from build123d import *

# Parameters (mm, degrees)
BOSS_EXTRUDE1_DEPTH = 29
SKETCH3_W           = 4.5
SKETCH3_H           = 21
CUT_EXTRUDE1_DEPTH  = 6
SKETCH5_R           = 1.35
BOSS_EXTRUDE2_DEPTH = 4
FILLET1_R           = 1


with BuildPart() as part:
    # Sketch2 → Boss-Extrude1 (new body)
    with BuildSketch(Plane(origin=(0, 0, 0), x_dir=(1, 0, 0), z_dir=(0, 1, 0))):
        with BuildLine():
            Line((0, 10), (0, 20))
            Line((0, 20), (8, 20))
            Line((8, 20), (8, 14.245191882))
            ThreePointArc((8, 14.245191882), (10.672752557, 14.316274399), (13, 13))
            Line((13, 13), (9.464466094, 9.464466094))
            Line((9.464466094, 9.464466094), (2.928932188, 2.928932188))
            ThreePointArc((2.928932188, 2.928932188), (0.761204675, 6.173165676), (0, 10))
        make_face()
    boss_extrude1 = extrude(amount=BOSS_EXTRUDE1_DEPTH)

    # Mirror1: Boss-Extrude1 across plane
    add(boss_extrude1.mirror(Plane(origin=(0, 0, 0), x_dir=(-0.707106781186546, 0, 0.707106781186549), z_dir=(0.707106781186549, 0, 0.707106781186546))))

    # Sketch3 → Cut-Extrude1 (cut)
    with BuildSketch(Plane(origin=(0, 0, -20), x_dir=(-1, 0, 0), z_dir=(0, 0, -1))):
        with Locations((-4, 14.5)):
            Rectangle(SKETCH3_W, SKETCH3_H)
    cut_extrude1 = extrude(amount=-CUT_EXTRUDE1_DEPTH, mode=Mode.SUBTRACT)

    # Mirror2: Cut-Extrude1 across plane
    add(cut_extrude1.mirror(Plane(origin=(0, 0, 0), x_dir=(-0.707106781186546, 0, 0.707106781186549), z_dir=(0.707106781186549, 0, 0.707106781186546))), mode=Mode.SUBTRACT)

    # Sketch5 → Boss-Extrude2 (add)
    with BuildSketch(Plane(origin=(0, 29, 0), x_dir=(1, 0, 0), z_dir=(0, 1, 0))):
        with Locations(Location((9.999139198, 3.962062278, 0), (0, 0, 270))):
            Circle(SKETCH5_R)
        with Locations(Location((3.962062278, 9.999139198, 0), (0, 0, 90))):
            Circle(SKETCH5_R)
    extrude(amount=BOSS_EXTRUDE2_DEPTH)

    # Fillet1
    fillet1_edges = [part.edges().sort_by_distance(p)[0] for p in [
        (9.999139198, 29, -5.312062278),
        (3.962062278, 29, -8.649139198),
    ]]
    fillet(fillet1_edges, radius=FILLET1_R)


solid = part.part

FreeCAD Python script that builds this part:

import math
import FreeCAD as App
import Part
import Sketcher
from FreeCAD import Vector
Q = App.Units.Quantity


def edges_at(feature, points):
    """Names of the edges that pass closest to the given points."""
    edges = feature.Shape.Edges
    near = lambda p: min(range(len(edges)), key=lambda i: edges[i].distToShape(Part.Vertex(*p))[0])
    return sorted({f"Edge{near(p) + 1}" for p in points})

doc = App.newDocument("Part")
body = doc.addObject("PartDesign::Body", "Body")

# Sketch on XZ plane
sketch1 = doc.addObject("Sketcher::SketchObject", "Sketch")
body.addObject(sketch1)
sketch1.AttachmentSupport = (doc.XZ_Plane, [""])
sketch1.MapMode = "FlatFace"
sketch1.addGeometry([
    Part.LineSegment(Vector(0, -20, 0), Vector(0, -10, 0)),  # 0
    Part.ArcOfCircle(Part.Circle(Vector(10, -10, 0), Vector(0, 0, 1), 10), math.radians(135), math.radians(180)),  # 1
    Part.LineSegment(Vector(2.9, -2.9, 0), Vector(13, -13, 0)),  # 2
    Part.ArcOfCircle(Part.Circle(Vector(9.5, -9.5, 0), Vector(0, 0, 1), 5), math.radians(-107), math.radians(-45)),  # 3
    Part.LineSegment(Vector(8, -14.2, 0), Vector(8, -20, 0)),  # 4
    Part.LineSegment(Vector(8, -20, 0), Vector(0, -20, 0)),  # 5
], False)
sketch1.addConstraint([
    Sketcher.Constraint("Tangent", 0, 2, 1, 2),
    Sketcher.Constraint("Coincident", 1, 1, 2, 1),
    Sketcher.Constraint("Coincident", 2, 2, 3, 2),
    Sketcher.Constraint("Coincident", 3, 1, 4, 1),
    Sketcher.Constraint("Coincident", 4, 2, 5, 1),
    Sketcher.Constraint("Coincident", 5, 2, 0, 1),
    Sketcher.Constraint("Vertical", 0),
    Sketcher.Constraint("Vertical", 4),
    Sketcher.Constraint("Horizontal", 5),
    Sketcher.Constraint("PointOnObject", 0, 2, -2),
    Sketcher.Constraint("Radius", 1, Q("10 mm")),
    Sketcher.Constraint("Radius", 3, Q("5 mm")),
    Sketcher.Constraint("DistanceX", 5, 2, 5, 1, Q("8 mm")),
    Sketcher.Constraint("DistanceY", 0, 1, 0, 2, Q("10 mm")),
    Sketcher.Constraint("Angle", 2, Q("-45 deg")),
    Sketcher.Constraint("DistanceY", 1, 3, -1, 1, Q("10 mm")),
    Sketcher.Constraint("DistanceX", -1, 1, 2, 2, Q("13 mm")),
    Sketcher.Constraint("DistanceY", 2, 2, -1, 1, Q("13 mm")),
    Sketcher.Constraint("DistanceY", 4, 2, 4, 1, Q("5.754808 mm")),
])
pad1 = doc.addObject("PartDesign::Pad", "Pad")
body.addObject(pad1)
pad1.Profile = sketch1
pad1.Length = 29
pad1.Reversed = True
doc.recompute()

datumplane = doc.addObject("PartDesign::Plane", "DatumPlane")
body.addObject(datumplane)
datumplane.Placement = App.Placement(Vector(0, 0, 0), App.Rotation(Vector(-0.707106781, 0, 0.707106781), Vector(0, -1, 0), Vector(0.707106781, 0, 0.707106781), "ZXY"))
mirrored = doc.addObject("PartDesign::Mirrored", "Mirrored")
body.addObject(mirrored)
mirrored.Originals = [pad1]
mirrored.MirrorPlane = (datumplane, [""])
body.Tip = mirrored

# Sketch on XY plane
sketch2 = doc.addObject("Sketcher::SketchObject", "Sketch001")
body.addObject(sketch2)
sketch2.AttachmentSupport = (doc.XY_Plane, [""])
sketch2.MapMode = "FlatFace"
sketch2.AttachmentOffset = App.Placement(Vector(0, 0, -20), App.Rotation())
sketch2.addGeometry([
    Part.LineSegment(Vector(6.2, 25, 0), Vector(6.2, 4, 0)),
    Part.LineSegment(Vector(6.2, 4, 0), Vector(1.8, 4, 0)),
    Part.LineSegment(Vector(1.8, 4, 0), Vector(1.8, 25, 0)),
    Part.LineSegment(Vector(1.8, 25, 0), Vector(6.2, 25, 0)),
], False)
sketch2.addConstraint([
    Sketcher.Constraint("Coincident", 0, 2, 1, 1),
    Sketcher.Constraint("Coincident", 1, 2, 2, 1),
    Sketcher.Constraint("Coincident", 2, 2, 3, 1),
    Sketcher.Constraint("Coincident", 3, 2, 0, 1),
    Sketcher.Constraint("Vertical", 0),
    Sketcher.Constraint("Horizontal", 1),
    Sketcher.Constraint("Vertical", 2),
    Sketcher.Constraint("Horizontal", 3),
    Sketcher.Constraint("DistanceY", 0, 2, 0, 1, Q("21 mm")),
    Sketcher.Constraint("DistanceX", 1, 2, 1, 1, Q("4.5 mm")),
    Sketcher.Constraint("DistanceY", -1, 1, 0, 2, Q("4 mm")),
    Sketcher.Constraint("DistanceX", -1, 1, 0, 2, Q("6.25 mm")),
])
pocket1 = doc.addObject("PartDesign::Pocket", "Pocket")
body.addObject(pocket1)
pocket1.Profile = sketch2
pocket1.Length = 6
pocket1.Reversed = True
doc.recompute()

datumplane2 = doc.addObject("PartDesign::Plane", "DatumPlane001")
body.addObject(datumplane2)
datumplane2.Placement = App.Placement(Vector(0, 0, 0), App.Rotation(Vector(-0.707106781, 0, 0.707106781), Vector(0, -1, 0), Vector(0.707106781, 0, 0.707106781), "ZXY"))
mirrored2 = doc.addObject("PartDesign::Mirrored", "Mirrored001")
body.addObject(mirrored2)
mirrored2.Originals = [pocket1]
mirrored2.MirrorPlane = (datumplane2, [""])
body.Tip = mirrored2

# Sketch on XZ plane
sketch3 = doc.addObject("Sketcher::SketchObject", "Sketch002")
body.addObject(sketch3)
sketch3.AttachmentSupport = (doc.XZ_Plane, [""])
sketch3.MapMode = "FlatFace"
sketch3.AttachmentOffset = App.Placement(Vector(0, 0, -29), App.Rotation())
sketch3.addGeometry([
    Part.Circle(Vector(10, -4, 0), Vector(0, 0, 1), 1.4),
    Part.Circle(Vector(4, -10, 0), Vector(0, 0, 1), 1.4),
], False)
sketch3.addConstraint([
    Sketcher.Constraint("Equal", 0, 1),
    Sketcher.Constraint("Diameter", 0, Q("2.7 mm")),
    Sketcher.Constraint("DistanceX", -1, 1, 0, 3, Q("9.999139 mm")),
    Sketcher.Constraint("DistanceY", 1, 3, -1, 1, Q("9.999139 mm")),
    Sketcher.Constraint("DistanceY", 0, 3, -1, 1, Q("3.962062 mm")),
    Sketcher.Constraint("DistanceX", -1, 1, 1, 3, Q("3.962062 mm")),
])
pad2 = doc.addObject("PartDesign::Pad", "Pad001")
body.addObject(pad2)
pad2.Profile = sketch3
pad2.Length = 4
pad2.Reversed = True
doc.recompute()

fillet = doc.addObject("PartDesign::Fillet", "Fillet")
body.addObject(fillet)
fillet.Base = (pad2, edges_at(pad2, [(9.999, 29, -5.312), (3.962, 29, -8.649)]))
fillet.Radius = 1

doc.recompute()
